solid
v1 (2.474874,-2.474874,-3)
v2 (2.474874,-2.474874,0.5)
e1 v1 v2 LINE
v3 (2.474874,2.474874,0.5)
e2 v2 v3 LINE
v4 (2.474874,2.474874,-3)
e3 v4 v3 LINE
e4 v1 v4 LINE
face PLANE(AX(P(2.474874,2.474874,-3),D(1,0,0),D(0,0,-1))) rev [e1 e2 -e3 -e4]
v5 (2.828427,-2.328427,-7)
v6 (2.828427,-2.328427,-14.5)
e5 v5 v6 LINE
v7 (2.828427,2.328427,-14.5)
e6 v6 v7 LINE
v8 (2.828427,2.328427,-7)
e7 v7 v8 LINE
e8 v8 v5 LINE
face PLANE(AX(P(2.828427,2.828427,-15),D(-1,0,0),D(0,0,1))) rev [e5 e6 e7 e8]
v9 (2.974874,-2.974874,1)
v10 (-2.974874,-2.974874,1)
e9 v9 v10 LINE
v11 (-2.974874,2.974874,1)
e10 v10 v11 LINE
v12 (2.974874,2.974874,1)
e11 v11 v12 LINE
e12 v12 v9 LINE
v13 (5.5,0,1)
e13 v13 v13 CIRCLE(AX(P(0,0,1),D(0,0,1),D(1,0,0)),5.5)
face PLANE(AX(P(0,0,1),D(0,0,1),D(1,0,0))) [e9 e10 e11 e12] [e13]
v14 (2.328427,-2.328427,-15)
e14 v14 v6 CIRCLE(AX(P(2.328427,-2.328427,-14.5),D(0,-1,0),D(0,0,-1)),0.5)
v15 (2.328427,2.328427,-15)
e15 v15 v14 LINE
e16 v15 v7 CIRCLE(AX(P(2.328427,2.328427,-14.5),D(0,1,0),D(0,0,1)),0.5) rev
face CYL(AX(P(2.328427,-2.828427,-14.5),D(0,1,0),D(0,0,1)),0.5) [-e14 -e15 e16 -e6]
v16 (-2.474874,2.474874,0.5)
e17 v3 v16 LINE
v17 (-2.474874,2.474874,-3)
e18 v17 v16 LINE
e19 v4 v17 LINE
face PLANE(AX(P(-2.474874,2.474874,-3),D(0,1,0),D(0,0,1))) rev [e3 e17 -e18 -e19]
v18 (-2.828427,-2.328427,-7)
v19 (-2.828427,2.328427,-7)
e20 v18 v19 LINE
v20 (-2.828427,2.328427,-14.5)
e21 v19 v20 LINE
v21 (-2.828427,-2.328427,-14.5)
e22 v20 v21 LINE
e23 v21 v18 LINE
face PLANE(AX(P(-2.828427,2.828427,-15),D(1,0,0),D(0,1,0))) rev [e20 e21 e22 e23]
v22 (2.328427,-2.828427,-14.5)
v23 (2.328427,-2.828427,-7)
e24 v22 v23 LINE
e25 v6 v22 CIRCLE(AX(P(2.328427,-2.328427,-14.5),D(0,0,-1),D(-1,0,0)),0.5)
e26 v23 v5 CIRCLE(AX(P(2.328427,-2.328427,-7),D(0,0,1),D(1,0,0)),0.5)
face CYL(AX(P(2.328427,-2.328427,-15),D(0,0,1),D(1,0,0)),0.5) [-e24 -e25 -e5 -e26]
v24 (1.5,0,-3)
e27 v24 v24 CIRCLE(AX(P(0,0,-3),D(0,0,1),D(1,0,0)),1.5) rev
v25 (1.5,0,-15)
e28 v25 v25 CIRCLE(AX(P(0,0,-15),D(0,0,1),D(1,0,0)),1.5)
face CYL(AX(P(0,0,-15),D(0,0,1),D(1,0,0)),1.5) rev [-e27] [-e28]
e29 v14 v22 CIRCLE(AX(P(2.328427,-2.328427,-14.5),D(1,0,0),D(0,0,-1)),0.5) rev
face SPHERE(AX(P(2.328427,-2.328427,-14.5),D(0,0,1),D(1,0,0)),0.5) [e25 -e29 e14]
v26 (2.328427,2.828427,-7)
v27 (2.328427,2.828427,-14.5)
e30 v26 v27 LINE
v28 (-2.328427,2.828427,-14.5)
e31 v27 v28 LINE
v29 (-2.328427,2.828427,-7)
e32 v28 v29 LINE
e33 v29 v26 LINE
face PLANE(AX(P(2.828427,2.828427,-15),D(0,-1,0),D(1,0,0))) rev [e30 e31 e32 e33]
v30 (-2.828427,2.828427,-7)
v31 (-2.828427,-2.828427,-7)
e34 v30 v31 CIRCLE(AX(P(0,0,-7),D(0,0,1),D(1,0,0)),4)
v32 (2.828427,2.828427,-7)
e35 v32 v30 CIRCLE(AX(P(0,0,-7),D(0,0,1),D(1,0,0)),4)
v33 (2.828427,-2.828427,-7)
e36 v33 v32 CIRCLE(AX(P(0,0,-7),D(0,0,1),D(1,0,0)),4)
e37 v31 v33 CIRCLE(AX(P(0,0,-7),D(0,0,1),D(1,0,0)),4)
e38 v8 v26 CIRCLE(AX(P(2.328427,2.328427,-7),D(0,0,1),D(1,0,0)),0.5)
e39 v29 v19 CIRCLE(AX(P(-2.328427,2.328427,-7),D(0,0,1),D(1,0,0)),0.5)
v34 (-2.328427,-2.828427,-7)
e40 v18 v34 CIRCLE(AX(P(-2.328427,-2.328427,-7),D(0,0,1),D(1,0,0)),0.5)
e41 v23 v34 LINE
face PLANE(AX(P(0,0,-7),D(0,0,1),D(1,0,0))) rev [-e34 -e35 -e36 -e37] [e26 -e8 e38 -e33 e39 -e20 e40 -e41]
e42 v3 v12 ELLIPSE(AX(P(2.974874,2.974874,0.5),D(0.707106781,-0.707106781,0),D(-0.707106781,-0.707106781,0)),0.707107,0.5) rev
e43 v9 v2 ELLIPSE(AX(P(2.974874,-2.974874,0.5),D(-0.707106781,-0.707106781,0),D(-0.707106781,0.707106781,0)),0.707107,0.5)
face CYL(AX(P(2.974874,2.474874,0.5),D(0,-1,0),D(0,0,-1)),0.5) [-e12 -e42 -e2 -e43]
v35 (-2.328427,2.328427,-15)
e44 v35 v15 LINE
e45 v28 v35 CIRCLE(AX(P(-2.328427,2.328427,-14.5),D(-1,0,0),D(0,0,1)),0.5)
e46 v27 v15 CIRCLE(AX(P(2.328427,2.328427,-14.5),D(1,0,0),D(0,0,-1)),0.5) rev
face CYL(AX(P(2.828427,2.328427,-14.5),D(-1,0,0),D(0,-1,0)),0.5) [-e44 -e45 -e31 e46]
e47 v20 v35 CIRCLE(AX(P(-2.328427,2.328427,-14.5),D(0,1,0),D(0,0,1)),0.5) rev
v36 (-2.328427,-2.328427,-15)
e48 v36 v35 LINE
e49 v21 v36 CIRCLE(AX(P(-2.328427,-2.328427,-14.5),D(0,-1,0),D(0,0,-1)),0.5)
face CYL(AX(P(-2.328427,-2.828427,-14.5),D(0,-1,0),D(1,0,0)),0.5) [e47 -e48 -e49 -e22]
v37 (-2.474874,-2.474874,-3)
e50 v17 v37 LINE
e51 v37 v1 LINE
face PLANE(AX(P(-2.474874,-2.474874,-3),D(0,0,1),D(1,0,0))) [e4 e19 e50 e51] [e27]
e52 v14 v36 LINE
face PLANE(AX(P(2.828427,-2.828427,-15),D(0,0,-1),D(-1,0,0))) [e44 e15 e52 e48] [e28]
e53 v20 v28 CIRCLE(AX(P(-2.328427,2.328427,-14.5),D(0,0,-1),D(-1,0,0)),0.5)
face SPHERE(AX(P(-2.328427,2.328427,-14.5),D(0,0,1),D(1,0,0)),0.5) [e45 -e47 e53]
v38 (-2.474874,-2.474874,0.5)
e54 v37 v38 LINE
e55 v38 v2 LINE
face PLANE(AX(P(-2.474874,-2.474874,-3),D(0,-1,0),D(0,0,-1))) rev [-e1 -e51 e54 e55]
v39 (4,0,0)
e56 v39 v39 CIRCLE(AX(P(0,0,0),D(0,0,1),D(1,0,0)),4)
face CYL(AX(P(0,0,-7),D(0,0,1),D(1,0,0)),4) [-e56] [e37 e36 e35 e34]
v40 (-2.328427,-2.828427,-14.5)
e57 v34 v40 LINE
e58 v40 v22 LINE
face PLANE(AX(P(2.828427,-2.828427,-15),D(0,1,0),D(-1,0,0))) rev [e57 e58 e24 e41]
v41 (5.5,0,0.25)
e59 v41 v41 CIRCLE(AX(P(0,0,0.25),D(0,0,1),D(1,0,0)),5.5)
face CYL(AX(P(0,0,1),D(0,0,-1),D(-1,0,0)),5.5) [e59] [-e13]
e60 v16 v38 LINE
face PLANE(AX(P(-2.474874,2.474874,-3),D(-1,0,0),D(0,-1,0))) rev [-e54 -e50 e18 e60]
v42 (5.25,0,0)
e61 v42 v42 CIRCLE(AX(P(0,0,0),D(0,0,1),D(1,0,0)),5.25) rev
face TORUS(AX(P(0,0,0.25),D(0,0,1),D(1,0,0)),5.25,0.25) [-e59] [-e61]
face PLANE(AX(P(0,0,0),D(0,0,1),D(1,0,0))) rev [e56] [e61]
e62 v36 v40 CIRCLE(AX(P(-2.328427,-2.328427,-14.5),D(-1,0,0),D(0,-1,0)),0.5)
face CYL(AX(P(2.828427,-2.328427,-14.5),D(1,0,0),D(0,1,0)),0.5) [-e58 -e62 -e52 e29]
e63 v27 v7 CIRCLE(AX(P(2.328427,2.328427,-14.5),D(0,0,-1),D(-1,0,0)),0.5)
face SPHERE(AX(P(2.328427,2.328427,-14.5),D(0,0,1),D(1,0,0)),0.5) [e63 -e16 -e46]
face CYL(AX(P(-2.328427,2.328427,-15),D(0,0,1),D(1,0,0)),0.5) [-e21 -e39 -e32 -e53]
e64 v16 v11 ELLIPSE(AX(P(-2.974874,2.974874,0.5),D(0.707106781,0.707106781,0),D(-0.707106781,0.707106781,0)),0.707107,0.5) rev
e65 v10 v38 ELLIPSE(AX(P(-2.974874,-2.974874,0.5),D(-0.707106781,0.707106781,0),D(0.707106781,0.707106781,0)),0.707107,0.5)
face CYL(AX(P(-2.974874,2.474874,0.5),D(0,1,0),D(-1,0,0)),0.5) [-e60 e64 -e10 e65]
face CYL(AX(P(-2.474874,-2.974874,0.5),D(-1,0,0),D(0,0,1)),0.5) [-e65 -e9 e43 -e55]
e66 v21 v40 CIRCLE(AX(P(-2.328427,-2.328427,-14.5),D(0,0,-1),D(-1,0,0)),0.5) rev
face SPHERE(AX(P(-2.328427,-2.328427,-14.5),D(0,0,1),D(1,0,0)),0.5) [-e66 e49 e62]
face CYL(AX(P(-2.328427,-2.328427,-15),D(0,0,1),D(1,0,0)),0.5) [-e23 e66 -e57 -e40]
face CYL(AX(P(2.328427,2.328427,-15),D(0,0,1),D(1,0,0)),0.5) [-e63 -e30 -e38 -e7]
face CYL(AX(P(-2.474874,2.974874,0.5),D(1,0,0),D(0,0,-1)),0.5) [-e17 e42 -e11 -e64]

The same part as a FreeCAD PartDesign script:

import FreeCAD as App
import Part
import Sketcher
Q = App.Units.Quantity


def edges_at(feature, points):
    """Names of the edges that pass closest to the given points."""
    edges = feature.Shape.Edges
    near = lambda p: min(range(len(edges)), key=lambda i: edges[i].distToShape(Part.Vertex(*p))[0])
    return sorted({f"Edge{near(p) + 1}" for p in points})

doc = App.newDocument("Part")
body = doc.addObject("PartDesign::Body", "Body")

# Sketch on XY plane
sketch1 = body.newObject("Sketcher::SketchObject", "Sketch")
sketch1.AttachmentSupport = (doc.getObject("XY_Plane"), [""])
sketch1.MapMode = "FlatFace"
sketch1.addGeometry(Part.Circle(App.Vector(0, 0, 0), App.Vector(0, 0, 1), 4), False)
sketch1.addConstraint(Sketcher.Constraint("Coincident", 0, 3, -1, 1))
sketch1.addConstraint(Sketcher.Constraint("Diameter", 0, Q("8 mm")))
pad1 = body.newObject("PartDesign::Pad", "Pad")
pad1.Profile = sketch1
pad1.Length = 7
pad1.Reversed = True

# Sketch on XY plane
sketch2 = body.newObject("Sketcher::SketchObject", "Sketch001")
sketch2.AttachmentSupport = (doc.getObject("XY_Plane"), [""])
sketch2.MapMode = "FlatFace"
sketch2.AttachmentOffset = App.Placement(App.Vector(0, 0, -7), App.Rotation())
sketch2.addGeometry(Part.LineSegment(App.Vector(3, 3, 0), App.Vector(3, -3, 0)), False)
sketch2.addGeometry(Part.LineSegment(App.Vector(3, -3, 0), App.Vector(-3, -3, 0)), False)
sketch2.addGeometry(Part.LineSegment(App.Vector(-3, -3, 0), App.Vector(-3, 3, 0)), False)
sketch2.addGeometry(Part.LineSegment(App.Vector(-3, 3, 0), App.Vector(3, 3, 0)), False)
sketch2.addConstraint(Sketcher.Constraint("Coincident", 0, 2, 1, 1))
sketch2.addConstraint(Sketcher.Constraint("Coincident", 1, 2, 2, 1))
sketch2.addConstraint(Sketcher.Constraint("Coincident", 2, 2, 3, 1))
sketch2.addConstraint(Sketcher.Constraint("Coincident", 3, 2, 0, 1))
sketch2.addConstraint(Sketcher.Constraint("Vertical", 0))
sketch2.addConstraint(Sketcher.Constraint("Horizontal", 1))
sketch2.addConstraint(Sketcher.Constraint("Vertical", 2))
sketch2.addConstraint(Sketcher.Constraint("Horizontal", 3))
sketch2.addConstraint(Sketcher.Constraint("Symmetric", 0, 2, 2, 2, -1, 1))
sketch2.addConstraint(Sketcher.Constraint("Equal", 3, 0))
sketch2.addConstraint(Sketcher.Constraint("DistanceX", 1, 2, 1, 1, Q("5.656854 mm")))
pad2 = body.newObject("PartDesign::Pad", "Pad001")
pad2.Profile = sketch2
pad2.Length = 8
pad2.Reversed = True
doc.recompute()

fillet = body.newObject("PartDesign::Fillet", "Fillet")
fillet.Base = (pad2, edges_at(pad2, [
    (-2.828, 0, -15),
    (0, 2.828, -15),
    (2.828, 2.828, -11),
    (2.828, -2.828, -11),
    (-2.828, -2.828, -11),
    (-2.828, 2.828, -11),
    (2.828, 0, -15),
    (0, -2.828, -15),
]))
fillet.Radius = 0.5

# Sketch on XY plane
sketch3 = body.newObject("Sketcher::SketchObject", "Sketch002")
sketch3.AttachmentSupport = (doc.getObject("XY_Plane"), [""])
sketch3.MapMode = "FlatFace"
sketch3.addGeometry(Part.Circle(App.Vector(0, 0, 0), App.Vector(0, 0, 1), 6), False)
sketch3.addConstraint(Sketcher.Constraint("Coincident", 0, 3, -1, 1))
sketch3.addConstraint(Sketcher.Constraint("Diameter", 0, Q("11 mm")))
pad3 = body.newObject("PartDesign::Pad", "Pad002")
pad3.Profile = sketch3
pad3.Length = 1

# Sketch on XY plane
sketch4 = body.newObject("Sketcher::SketchObject", "Sketch003")
sketch4.AttachmentSupport = (doc.getObject("XY_Plane"), [""])
sketch4.MapMode = "FlatFace"
sketch4.AttachmentOffset = App.Placement(App.Vector(0, 0, 1), App.Rotation())
sketch4.addGeometry(Part.Circle(App.Vector(0, 0, 0), App.Vector(0, 0, 1), 1.5), False)
sketch4.addConstraint(Sketcher.Constraint("Coincident", 0, 3, -1, 1))
sketch4.addConstraint(Sketcher.Constraint("Diameter", 0, Q("3 mm")))
pocket1 = body.newObject("PartDesign::Pocket", "Pocket")
pocket1.Profile = sketch4
pocket1.Type = "ThroughAll"

# Sketch on XY plane
sketch5 = body.newObject("Sketcher::SketchObject", "Sketch004")
sketch5.AttachmentSupport = (doc.getObject("XY_Plane"), [""])
sketch5.MapMode = "FlatFace"
sketch5.AttachmentOffset = App.Placement(App.Vector(0, 0, 1), App.Rotation())
sketch5.addGeometry(Part.LineSegment(App.Vector(-2.5, 2.5, 0), App.Vector(-2.5, -2.5, 0)), False)
sketch5.addGeometry(Part.LineSegment(App.Vector(-2.5, -2.5, 0), App.Vector(2.5, -2.5, 0)), False)
sketch5.addGeometry(Part.LineSegment(App.Vector(2.5, -2.5, 0), App.Vector(2.5, 2.5, 0)), False)
sketch5.addGeometry(Part.LineSegment(App.Vector(2.5, 2.5, 0), App.Vector(-2.5, 2.5, 0)), False)
sketch5.addConstraint(Sketcher.Constraint("Coincident", 0, 2, 1, 1))
sketch5.addConstraint(Sketcher.Constraint("Coincident", 1, 2, 2, 1))
sketch5.addConstraint(Sketcher.Constraint("Coincident", 2, 2, 3, 1))
sketch5.addConstraint(Sketcher.Constraint("Coincident", 3, 2, 0, 1))
sketch5.addConstraint(Sketcher.Constraint("Vertical", 0))
sketch5.addConstraint(Sketcher.Constraint("Horizontal", 1))
sketch5.addConstraint(Sketcher.Constraint("Vertical", 2))
sketch5.addConstraint(Sketcher.Constraint("Horizontal", 3))
sketch5.addConstraint(Sketcher.Constraint("Symmetric", 0, 2, 2, 2, -1, 1))
sketch5.addConstraint(Sketcher.Constraint("Equal", 3, 0))
sketch5.addConstraint(Sketcher.Constraint("DistanceX", 1, 1, 1, 2, Q("4.949747 mm")))
pocket2 = body.newObject("PartDesign::Pocket", "Pocket001")
pocket2.Profile = sketch5
pocket2.Length = 4
doc.recompute()

fillet2 = body.newObject("PartDesign::Fillet", "Fillet001")
fillet2.Base = (pocket2, edges_at(pocket2, [(-5.5, 0, 0)]))
fillet2.Radius = 0.25
doc.recompute()

fillet3 = body.newObject("PartDesign::Fillet", "Fillet002")
fillet3.Base = (fillet2, edges_at(fillet2, [
    (-2.475, 0, 1),
    (0, -2.475, 1),
    (2.475, 0, 1),
    (0, 2.475, 1),
]))
fillet3.Radius = 0.5

doc.recompute()
